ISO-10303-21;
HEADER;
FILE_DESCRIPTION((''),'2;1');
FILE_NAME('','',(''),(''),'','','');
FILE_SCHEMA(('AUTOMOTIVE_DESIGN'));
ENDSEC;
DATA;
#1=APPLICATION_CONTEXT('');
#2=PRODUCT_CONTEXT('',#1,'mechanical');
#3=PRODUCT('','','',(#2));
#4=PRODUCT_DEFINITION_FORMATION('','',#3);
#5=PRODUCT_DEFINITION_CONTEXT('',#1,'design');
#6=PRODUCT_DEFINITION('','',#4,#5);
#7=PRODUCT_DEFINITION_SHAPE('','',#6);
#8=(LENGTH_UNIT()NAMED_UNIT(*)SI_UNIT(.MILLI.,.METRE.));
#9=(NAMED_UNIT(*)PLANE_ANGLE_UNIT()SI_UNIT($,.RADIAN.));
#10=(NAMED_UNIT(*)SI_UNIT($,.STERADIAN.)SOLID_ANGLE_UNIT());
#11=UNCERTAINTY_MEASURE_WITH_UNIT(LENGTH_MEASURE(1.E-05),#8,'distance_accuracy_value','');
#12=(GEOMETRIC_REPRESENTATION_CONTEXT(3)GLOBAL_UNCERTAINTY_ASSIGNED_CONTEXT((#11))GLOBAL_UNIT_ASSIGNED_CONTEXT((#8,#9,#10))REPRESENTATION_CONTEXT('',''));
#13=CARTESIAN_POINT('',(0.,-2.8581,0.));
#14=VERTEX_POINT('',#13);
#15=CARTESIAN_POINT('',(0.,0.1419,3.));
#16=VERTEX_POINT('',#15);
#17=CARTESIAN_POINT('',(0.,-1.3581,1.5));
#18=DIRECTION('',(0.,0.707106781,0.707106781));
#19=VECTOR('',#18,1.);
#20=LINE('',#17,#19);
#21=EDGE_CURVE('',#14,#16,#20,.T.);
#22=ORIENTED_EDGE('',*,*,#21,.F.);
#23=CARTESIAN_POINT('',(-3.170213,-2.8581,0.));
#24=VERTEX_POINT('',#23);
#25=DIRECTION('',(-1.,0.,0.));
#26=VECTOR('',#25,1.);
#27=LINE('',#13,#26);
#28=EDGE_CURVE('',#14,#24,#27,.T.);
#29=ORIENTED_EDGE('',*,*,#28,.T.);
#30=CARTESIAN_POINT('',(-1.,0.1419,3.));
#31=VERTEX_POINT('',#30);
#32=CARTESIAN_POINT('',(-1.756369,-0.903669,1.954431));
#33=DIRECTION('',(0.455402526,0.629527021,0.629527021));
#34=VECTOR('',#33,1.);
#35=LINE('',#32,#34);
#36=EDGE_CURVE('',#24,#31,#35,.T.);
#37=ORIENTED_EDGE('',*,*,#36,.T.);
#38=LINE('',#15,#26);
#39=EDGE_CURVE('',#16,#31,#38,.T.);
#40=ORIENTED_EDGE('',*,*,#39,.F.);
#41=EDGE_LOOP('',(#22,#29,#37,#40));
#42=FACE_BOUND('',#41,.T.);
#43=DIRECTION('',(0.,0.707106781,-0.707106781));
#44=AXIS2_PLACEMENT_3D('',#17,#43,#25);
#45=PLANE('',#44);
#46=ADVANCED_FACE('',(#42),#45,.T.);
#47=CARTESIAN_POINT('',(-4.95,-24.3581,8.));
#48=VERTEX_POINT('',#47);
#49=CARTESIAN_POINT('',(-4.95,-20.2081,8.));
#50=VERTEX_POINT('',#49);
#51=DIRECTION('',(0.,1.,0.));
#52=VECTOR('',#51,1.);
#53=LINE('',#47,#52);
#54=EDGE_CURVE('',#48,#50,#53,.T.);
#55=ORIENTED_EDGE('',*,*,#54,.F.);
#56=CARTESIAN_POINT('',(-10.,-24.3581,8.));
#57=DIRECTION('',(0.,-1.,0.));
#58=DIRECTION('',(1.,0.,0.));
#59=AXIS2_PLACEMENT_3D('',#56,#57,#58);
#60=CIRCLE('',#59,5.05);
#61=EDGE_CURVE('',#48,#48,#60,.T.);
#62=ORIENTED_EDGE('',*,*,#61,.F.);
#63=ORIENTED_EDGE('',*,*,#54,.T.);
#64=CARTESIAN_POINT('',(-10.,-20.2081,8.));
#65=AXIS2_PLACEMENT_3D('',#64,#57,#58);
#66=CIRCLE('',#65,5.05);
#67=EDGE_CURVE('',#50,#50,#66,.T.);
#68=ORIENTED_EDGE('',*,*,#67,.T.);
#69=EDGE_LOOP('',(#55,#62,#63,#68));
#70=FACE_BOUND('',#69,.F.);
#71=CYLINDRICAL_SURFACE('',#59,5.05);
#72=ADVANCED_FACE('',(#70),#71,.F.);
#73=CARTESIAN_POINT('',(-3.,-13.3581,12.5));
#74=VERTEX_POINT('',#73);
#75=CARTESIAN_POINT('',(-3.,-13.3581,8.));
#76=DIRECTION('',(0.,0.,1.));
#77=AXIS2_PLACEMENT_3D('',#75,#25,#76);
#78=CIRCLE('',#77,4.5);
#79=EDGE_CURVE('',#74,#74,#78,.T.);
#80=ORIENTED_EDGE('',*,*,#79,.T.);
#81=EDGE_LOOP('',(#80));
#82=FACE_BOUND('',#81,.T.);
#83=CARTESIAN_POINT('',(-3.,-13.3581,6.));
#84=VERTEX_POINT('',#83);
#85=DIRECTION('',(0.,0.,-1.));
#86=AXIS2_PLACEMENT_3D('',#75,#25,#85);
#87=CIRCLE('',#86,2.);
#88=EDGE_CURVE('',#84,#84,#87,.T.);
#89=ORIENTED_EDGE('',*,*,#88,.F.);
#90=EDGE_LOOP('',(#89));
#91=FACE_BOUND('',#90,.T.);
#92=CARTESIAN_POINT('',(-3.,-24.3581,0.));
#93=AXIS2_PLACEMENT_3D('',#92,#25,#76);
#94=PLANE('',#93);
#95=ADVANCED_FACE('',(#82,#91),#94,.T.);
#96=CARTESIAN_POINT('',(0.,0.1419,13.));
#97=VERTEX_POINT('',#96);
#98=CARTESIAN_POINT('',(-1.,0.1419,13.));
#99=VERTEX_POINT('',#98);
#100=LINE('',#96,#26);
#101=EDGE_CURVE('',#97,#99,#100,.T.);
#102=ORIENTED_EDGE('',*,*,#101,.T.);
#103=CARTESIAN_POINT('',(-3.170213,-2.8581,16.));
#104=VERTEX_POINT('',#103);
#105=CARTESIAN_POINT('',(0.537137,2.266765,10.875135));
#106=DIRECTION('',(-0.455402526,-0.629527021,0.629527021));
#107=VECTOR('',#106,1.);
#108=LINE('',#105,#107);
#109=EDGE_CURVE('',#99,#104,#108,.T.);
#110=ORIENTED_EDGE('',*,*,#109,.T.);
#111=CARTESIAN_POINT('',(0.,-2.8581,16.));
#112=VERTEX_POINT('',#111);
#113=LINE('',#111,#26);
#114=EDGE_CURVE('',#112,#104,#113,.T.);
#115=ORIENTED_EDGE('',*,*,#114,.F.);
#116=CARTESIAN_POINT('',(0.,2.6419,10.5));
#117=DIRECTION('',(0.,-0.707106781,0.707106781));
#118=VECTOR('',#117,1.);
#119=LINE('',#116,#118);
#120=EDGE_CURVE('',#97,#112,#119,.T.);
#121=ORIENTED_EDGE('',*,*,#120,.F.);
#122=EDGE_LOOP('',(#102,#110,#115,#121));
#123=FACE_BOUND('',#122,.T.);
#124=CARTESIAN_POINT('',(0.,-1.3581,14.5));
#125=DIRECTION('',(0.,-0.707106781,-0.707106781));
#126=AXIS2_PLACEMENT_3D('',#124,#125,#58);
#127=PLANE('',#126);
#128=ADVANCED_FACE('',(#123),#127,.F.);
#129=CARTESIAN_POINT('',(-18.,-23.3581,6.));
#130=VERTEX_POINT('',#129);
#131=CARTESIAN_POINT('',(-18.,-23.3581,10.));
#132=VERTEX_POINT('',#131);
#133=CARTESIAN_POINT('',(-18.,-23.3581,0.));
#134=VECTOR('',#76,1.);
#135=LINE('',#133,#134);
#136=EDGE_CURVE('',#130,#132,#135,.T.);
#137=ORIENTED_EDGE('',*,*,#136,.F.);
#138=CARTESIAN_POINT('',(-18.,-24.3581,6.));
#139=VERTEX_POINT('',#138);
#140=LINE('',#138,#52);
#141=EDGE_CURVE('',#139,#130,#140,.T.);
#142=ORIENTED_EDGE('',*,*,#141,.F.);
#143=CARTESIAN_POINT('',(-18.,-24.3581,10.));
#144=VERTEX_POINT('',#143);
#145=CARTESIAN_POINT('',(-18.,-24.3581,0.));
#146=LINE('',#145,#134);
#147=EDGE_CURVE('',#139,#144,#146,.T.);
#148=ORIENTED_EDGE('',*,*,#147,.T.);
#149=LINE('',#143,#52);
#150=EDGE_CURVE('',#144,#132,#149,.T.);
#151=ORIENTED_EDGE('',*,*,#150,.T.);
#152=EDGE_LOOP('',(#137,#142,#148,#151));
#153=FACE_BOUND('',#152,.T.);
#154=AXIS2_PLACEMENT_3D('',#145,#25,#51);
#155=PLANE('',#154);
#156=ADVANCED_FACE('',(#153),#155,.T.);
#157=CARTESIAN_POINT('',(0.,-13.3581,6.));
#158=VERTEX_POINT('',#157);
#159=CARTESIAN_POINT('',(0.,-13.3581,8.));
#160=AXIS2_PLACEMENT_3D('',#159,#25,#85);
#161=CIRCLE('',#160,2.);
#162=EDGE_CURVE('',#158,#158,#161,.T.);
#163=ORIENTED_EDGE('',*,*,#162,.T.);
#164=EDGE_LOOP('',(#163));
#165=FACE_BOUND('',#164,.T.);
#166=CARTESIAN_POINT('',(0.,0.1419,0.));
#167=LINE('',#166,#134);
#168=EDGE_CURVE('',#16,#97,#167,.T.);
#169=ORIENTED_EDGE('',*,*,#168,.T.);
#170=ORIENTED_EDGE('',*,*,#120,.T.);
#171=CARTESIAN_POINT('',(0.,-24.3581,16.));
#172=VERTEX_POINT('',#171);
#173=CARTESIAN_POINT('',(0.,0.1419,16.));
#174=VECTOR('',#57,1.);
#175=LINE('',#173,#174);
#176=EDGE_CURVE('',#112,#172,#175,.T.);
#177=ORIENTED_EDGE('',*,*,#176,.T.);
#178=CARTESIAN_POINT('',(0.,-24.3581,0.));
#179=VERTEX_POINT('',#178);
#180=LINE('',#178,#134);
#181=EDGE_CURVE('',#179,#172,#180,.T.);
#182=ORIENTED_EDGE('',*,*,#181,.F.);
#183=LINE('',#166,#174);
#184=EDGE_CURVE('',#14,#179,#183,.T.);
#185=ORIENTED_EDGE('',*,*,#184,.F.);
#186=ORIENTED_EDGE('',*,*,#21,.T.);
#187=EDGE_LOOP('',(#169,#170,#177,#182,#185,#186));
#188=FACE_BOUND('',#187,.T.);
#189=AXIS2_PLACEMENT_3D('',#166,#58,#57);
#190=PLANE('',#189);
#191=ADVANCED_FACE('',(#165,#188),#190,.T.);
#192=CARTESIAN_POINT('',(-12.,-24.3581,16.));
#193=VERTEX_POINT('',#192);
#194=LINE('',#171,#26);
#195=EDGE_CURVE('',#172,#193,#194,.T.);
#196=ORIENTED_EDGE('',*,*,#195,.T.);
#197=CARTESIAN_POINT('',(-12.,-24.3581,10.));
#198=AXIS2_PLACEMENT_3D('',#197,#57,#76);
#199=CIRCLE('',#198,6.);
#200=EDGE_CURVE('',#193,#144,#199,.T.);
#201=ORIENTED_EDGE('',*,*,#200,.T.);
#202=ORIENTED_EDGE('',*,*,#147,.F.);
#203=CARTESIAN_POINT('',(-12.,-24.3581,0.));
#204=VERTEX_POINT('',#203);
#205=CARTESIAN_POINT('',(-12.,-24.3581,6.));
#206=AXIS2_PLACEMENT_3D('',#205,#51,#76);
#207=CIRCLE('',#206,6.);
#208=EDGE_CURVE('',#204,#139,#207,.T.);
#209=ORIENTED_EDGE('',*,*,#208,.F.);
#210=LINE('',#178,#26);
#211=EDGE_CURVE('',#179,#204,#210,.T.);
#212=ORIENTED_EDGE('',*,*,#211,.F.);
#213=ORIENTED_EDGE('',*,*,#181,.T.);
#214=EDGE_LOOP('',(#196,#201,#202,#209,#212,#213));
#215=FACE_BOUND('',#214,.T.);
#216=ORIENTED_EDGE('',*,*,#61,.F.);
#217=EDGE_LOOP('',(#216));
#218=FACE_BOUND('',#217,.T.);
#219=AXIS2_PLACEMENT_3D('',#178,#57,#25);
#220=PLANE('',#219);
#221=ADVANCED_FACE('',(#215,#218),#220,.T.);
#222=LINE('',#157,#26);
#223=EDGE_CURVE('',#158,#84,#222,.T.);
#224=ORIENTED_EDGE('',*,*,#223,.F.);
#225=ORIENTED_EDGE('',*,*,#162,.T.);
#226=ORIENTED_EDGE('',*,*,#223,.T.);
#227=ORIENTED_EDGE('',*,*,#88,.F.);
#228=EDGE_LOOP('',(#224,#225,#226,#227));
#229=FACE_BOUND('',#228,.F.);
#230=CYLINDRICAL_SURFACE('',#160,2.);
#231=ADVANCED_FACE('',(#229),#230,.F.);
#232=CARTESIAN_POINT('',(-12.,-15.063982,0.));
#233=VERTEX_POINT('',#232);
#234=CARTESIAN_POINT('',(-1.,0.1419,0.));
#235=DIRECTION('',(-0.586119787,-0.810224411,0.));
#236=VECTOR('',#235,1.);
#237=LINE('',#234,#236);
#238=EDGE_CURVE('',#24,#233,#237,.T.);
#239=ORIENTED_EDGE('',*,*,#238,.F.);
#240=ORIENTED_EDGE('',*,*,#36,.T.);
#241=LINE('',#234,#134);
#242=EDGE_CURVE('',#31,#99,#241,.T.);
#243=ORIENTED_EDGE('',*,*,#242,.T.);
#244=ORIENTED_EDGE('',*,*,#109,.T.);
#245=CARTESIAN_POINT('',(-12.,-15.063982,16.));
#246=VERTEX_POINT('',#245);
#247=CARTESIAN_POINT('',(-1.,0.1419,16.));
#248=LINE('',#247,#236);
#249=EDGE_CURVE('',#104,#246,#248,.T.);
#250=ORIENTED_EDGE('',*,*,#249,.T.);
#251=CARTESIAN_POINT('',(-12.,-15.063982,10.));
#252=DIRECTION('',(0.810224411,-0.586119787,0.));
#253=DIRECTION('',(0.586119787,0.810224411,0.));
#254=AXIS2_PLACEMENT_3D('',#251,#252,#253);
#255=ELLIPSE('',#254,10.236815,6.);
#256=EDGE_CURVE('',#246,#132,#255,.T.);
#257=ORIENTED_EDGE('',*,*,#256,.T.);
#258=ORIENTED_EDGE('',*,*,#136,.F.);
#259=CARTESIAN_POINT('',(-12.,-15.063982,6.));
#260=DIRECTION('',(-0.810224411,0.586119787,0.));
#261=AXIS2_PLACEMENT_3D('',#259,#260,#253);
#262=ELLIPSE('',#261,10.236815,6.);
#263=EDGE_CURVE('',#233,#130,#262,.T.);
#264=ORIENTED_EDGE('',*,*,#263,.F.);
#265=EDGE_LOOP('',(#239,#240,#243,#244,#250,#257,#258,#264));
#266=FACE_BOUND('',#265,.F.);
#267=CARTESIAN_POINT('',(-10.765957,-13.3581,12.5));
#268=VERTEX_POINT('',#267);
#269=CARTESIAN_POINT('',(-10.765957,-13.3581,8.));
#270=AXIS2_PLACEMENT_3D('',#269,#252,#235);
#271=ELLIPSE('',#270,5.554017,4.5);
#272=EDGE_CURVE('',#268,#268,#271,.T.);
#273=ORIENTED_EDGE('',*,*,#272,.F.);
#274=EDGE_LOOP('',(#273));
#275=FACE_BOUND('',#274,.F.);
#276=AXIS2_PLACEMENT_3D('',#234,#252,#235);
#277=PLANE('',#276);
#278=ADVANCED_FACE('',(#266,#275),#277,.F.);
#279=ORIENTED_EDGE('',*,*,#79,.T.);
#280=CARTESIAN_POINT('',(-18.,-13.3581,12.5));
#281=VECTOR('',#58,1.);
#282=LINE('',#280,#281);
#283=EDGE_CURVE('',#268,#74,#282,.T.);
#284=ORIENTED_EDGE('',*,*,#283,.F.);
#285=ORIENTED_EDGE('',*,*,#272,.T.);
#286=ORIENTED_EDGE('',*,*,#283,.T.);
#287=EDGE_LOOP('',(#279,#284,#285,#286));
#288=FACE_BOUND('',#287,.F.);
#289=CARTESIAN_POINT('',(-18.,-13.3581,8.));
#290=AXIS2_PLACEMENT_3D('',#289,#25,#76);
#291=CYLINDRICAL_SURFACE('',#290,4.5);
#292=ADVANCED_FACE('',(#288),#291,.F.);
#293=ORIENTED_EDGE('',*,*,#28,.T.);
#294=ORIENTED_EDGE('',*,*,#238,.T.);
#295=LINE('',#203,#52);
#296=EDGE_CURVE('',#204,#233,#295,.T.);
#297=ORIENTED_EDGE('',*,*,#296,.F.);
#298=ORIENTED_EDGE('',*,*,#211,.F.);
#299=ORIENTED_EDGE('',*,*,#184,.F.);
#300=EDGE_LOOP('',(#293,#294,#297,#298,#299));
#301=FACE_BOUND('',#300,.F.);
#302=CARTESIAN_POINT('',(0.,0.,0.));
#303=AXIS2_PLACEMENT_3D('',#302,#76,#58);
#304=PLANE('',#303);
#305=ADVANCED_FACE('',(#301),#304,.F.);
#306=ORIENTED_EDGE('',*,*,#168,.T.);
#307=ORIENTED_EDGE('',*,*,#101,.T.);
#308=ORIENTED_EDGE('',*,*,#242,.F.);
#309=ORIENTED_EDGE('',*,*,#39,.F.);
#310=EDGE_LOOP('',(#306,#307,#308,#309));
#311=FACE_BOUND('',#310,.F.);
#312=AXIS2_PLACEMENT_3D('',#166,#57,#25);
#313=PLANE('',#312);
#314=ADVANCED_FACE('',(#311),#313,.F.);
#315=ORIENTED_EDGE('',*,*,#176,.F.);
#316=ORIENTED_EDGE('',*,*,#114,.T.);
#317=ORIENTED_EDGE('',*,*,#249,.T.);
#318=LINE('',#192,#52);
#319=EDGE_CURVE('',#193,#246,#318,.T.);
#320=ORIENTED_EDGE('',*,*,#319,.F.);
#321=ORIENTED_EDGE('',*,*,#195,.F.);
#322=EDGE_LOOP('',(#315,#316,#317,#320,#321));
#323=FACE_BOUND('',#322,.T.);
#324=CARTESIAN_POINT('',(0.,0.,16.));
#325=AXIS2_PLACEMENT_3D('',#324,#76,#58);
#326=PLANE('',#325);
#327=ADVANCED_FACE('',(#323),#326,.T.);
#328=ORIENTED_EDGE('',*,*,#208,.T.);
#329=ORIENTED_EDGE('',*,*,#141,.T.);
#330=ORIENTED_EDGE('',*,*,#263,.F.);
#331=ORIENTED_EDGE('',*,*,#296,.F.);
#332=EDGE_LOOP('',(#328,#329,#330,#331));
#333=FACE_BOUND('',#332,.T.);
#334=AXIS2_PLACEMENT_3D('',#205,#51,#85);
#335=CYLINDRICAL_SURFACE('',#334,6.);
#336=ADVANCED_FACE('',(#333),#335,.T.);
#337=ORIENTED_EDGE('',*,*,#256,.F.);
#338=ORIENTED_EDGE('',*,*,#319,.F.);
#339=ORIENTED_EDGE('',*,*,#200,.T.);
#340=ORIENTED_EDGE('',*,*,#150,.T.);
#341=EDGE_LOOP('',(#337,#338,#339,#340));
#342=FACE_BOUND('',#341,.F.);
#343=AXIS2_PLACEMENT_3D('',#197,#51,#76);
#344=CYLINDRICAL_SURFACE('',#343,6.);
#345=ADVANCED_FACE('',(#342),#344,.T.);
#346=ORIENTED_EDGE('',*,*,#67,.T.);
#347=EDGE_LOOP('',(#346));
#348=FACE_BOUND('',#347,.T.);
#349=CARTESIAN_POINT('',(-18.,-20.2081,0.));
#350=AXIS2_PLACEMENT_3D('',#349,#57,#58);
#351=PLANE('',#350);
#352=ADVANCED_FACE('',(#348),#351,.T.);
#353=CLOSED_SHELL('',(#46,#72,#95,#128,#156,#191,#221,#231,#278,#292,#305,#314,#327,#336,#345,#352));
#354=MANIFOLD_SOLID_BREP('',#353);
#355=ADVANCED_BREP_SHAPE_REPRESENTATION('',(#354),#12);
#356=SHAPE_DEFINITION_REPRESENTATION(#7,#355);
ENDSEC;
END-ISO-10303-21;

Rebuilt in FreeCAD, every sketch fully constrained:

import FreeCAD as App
import Part
import Sketcher

V = App.Vector


def edges_at(feature, points):
    """Names of the edges that pass closest to the given points."""
    edges = feature.Shape.Edges
    near = lambda p: min(range(len(edges)), key=lambda i: edges[i].distToShape(Part.Vertex(*p))[0])
    return sorted({f"Edge{near(p) + 1}" for p in points})

doc = App.newDocument("Part")
body = doc.addObject("PartDesign::Body", "Body")

# Sketch on XY plane
sketch1 = body.newObject("Sketcher::SketchObject", "Sketch")
sketch1.AttachmentSupport = (doc.getObject("XY_Plane"), [""])
sketch1.MapMode = "FlatFace"
sketch1.addGeometry(Part.LineSegment(V(0, -24.4, 0), V(0, 0.1, 0)), False)
sketch1.addGeometry(Part.LineSegment(V(0, 0.1, 0), V(-1, 0.1, 0)), False)
sketch1.addGeometry(Part.LineSegment(V(-1, 0.1, 0), V(-18, -23.4, 0)), False)
sketch1.addGeometry(Part.LineSegment(V(-18, -23.4, 0), V(-18, -24.4, 0)), False)
sketch1.addGeometry(Part.LineSegment(V(-18, -24.4, 0), V(0, -24.4, 0)), False)
sketch1.addConstraint(Sketcher.Constraint("Coincident", 0, 2, 1, 1))
sketch1.addConstraint(Sketcher.Constraint("Coincident", 1, 2, 2, 1))
sketch1.addConstraint(Sketcher.Constraint("Coincident", 2, 2, 3, 1))
sketch1.addConstraint(Sketcher.Constraint("Coincident", 3, 2, 4, 1))
sketch1.addConstraint(Sketcher.Constraint("Coincident", 4, 2, 0, 1))
sketch1.addConstraint(Sketcher.Constraint("Vertical", 0))
sketch1.addConstraint(Sketcher.Constraint("Horizontal", 1))
sketch1.addConstraint(Sketcher.Constraint("Vertical", 3))
sketch1.addConstraint(Sketcher.Constraint("Horizontal", 4))
sketch1.addConstraint(Sketcher.Constraint("PointOnObject", 0, 2, -2))
sketch1.addConstraint(Sketcher.Constraint("Equal", 1, 3))
sketch1.addConstraint(Sketcher.Constraint("DistanceX", 1, 2, 1, 1, 1.0))
sketch1.addConstraint(Sketcher.Constraint("DistanceX", 4, 1, 4, 2, 18.0))
sketch1.addConstraint(Sketcher.Constraint("DistanceY", 0, 1, 0, 2, 24.5))
sketch1.addConstraint(Sketcher.Constraint("DistanceY", -1, 1, 0, 2, 0.142))
pad1 = body.newObject("PartDesign::Pad", "Pad")
pad1.Profile = sketch1
pad1.Length = 16

# Sketch on YZ plane
sketch2 = body.newObject("Sketcher::SketchObject", "Sketch001")
sketch2.AttachmentSupport = (doc.getObject("YZ_Plane"), [""])
sketch2.MapMode = "FlatFace"
sketch2.addGeometry(Part.Circle(V(-13.4, 8, 0), V(0, 0, 1), 2), False)
sketch2.addConstraint(Sketcher.Constraint("Diameter", 0, 4.0))
sketch2.addConstraint(Sketcher.Constraint("DistanceY", -1, 1, 0, 3, 8.0))
sketch2.addConstraint(Sketcher.Constraint("DistanceX", 0, 3, -1, 1, 13.358))
doc.recompute()
hole = body.newObject("PartDesign::Hole", "Hole")
hole.Profile = sketch2
hole.ThreadType = "None"
hole.Diameter = 4
hole.DepthType = "ThroughAll"

# Sketch on XZ plane
sketch3 = body.newObject("Sketcher::SketchObject", "Sketch002")
sketch3.AttachmentSupport = (doc.getObject("XZ_Plane"), [""])
sketch3.MapMode = "FlatFace"
sketch3.AttachmentOffset = App.Placement(V(0, 0, 24.3581), App.Rotation())
sketch3.addGeometry(Part.Circle(V(-10, 8, 0), V(0, 0, 1), 5), False)
sketch3.addConstraint(Sketcher.Constraint("Diameter", 0, 10.1))
sketch3.addConstraint(Sketcher.Constraint("DistanceX", 0, 3, -1, 1, 10.0))
sketch3.addConstraint(Sketcher.Constraint("DistanceY", -1, 1, 0, 3, 8.0))
pocket1 = body.newObject("PartDesign::Pocket", "Pocket")
pocket1.Profile = sketch3
pocket1.Length = 4.15

# Sketch on YZ plane
sketch4 = body.newObject("Sketcher::SketchObject", "Sketch003")
sketch4.AttachmentSupport = (doc.getObject("YZ_Plane"), [""])
sketch4.MapMode = "FlatFace"
sketch4.AttachmentOffset = App.Placement(V(0, 0, -18), App.Rotation())
sketch4.addGeometry(Part.Circle(V(-13.4, 8, 0), V(0, 0, 1), 4.5), False)
sketch4.addGeometry(Part.Circle(V(-13.4, 8, 0), V(0, 0, 1), 2), False)
sketch4.addConstraint(Sketcher.Constraint("Coincident", 1, 3, 0, 3))
sketch4.addConstraint(Sketcher.Constraint("Diameter", 0, 9.0))
sketch4.addConstraint(Sketcher.Constraint("Diameter", 1, 4.0))
sketch4.addConstraint(Sketcher.Constraint("DistanceY", -1, 1, 0, 3, 8.0))
sketch4.addConstraint(Sketcher.Constraint("DistanceX", 0, 3, -1, 1, 13.358))
pocket2 = body.newObject("PartDesign::Pocket", "Pocket001")
pocket2.Profile = sketch4
pocket2.Length = 15
pocket2.Reversed = True
doc.recompute()

fillet = body.newObject("PartDesign::Fillet", "Fillet")
fillet.Base = (pocket2, edges_at(pocket2, [(-18, -23.858, 16), (-18, -23.858, 0)]))
fillet.Radius = 6
doc.recompute()

chamfer = body.newObject("PartDesign::Chamfer", "Chamfer")
chamfer.Base = (fillet, edges_at(fillet, [(-0.5, 0.142, 16), (-0.5, 0.142, 0)]))
chamfer.Size = 3

doc.recompute()
